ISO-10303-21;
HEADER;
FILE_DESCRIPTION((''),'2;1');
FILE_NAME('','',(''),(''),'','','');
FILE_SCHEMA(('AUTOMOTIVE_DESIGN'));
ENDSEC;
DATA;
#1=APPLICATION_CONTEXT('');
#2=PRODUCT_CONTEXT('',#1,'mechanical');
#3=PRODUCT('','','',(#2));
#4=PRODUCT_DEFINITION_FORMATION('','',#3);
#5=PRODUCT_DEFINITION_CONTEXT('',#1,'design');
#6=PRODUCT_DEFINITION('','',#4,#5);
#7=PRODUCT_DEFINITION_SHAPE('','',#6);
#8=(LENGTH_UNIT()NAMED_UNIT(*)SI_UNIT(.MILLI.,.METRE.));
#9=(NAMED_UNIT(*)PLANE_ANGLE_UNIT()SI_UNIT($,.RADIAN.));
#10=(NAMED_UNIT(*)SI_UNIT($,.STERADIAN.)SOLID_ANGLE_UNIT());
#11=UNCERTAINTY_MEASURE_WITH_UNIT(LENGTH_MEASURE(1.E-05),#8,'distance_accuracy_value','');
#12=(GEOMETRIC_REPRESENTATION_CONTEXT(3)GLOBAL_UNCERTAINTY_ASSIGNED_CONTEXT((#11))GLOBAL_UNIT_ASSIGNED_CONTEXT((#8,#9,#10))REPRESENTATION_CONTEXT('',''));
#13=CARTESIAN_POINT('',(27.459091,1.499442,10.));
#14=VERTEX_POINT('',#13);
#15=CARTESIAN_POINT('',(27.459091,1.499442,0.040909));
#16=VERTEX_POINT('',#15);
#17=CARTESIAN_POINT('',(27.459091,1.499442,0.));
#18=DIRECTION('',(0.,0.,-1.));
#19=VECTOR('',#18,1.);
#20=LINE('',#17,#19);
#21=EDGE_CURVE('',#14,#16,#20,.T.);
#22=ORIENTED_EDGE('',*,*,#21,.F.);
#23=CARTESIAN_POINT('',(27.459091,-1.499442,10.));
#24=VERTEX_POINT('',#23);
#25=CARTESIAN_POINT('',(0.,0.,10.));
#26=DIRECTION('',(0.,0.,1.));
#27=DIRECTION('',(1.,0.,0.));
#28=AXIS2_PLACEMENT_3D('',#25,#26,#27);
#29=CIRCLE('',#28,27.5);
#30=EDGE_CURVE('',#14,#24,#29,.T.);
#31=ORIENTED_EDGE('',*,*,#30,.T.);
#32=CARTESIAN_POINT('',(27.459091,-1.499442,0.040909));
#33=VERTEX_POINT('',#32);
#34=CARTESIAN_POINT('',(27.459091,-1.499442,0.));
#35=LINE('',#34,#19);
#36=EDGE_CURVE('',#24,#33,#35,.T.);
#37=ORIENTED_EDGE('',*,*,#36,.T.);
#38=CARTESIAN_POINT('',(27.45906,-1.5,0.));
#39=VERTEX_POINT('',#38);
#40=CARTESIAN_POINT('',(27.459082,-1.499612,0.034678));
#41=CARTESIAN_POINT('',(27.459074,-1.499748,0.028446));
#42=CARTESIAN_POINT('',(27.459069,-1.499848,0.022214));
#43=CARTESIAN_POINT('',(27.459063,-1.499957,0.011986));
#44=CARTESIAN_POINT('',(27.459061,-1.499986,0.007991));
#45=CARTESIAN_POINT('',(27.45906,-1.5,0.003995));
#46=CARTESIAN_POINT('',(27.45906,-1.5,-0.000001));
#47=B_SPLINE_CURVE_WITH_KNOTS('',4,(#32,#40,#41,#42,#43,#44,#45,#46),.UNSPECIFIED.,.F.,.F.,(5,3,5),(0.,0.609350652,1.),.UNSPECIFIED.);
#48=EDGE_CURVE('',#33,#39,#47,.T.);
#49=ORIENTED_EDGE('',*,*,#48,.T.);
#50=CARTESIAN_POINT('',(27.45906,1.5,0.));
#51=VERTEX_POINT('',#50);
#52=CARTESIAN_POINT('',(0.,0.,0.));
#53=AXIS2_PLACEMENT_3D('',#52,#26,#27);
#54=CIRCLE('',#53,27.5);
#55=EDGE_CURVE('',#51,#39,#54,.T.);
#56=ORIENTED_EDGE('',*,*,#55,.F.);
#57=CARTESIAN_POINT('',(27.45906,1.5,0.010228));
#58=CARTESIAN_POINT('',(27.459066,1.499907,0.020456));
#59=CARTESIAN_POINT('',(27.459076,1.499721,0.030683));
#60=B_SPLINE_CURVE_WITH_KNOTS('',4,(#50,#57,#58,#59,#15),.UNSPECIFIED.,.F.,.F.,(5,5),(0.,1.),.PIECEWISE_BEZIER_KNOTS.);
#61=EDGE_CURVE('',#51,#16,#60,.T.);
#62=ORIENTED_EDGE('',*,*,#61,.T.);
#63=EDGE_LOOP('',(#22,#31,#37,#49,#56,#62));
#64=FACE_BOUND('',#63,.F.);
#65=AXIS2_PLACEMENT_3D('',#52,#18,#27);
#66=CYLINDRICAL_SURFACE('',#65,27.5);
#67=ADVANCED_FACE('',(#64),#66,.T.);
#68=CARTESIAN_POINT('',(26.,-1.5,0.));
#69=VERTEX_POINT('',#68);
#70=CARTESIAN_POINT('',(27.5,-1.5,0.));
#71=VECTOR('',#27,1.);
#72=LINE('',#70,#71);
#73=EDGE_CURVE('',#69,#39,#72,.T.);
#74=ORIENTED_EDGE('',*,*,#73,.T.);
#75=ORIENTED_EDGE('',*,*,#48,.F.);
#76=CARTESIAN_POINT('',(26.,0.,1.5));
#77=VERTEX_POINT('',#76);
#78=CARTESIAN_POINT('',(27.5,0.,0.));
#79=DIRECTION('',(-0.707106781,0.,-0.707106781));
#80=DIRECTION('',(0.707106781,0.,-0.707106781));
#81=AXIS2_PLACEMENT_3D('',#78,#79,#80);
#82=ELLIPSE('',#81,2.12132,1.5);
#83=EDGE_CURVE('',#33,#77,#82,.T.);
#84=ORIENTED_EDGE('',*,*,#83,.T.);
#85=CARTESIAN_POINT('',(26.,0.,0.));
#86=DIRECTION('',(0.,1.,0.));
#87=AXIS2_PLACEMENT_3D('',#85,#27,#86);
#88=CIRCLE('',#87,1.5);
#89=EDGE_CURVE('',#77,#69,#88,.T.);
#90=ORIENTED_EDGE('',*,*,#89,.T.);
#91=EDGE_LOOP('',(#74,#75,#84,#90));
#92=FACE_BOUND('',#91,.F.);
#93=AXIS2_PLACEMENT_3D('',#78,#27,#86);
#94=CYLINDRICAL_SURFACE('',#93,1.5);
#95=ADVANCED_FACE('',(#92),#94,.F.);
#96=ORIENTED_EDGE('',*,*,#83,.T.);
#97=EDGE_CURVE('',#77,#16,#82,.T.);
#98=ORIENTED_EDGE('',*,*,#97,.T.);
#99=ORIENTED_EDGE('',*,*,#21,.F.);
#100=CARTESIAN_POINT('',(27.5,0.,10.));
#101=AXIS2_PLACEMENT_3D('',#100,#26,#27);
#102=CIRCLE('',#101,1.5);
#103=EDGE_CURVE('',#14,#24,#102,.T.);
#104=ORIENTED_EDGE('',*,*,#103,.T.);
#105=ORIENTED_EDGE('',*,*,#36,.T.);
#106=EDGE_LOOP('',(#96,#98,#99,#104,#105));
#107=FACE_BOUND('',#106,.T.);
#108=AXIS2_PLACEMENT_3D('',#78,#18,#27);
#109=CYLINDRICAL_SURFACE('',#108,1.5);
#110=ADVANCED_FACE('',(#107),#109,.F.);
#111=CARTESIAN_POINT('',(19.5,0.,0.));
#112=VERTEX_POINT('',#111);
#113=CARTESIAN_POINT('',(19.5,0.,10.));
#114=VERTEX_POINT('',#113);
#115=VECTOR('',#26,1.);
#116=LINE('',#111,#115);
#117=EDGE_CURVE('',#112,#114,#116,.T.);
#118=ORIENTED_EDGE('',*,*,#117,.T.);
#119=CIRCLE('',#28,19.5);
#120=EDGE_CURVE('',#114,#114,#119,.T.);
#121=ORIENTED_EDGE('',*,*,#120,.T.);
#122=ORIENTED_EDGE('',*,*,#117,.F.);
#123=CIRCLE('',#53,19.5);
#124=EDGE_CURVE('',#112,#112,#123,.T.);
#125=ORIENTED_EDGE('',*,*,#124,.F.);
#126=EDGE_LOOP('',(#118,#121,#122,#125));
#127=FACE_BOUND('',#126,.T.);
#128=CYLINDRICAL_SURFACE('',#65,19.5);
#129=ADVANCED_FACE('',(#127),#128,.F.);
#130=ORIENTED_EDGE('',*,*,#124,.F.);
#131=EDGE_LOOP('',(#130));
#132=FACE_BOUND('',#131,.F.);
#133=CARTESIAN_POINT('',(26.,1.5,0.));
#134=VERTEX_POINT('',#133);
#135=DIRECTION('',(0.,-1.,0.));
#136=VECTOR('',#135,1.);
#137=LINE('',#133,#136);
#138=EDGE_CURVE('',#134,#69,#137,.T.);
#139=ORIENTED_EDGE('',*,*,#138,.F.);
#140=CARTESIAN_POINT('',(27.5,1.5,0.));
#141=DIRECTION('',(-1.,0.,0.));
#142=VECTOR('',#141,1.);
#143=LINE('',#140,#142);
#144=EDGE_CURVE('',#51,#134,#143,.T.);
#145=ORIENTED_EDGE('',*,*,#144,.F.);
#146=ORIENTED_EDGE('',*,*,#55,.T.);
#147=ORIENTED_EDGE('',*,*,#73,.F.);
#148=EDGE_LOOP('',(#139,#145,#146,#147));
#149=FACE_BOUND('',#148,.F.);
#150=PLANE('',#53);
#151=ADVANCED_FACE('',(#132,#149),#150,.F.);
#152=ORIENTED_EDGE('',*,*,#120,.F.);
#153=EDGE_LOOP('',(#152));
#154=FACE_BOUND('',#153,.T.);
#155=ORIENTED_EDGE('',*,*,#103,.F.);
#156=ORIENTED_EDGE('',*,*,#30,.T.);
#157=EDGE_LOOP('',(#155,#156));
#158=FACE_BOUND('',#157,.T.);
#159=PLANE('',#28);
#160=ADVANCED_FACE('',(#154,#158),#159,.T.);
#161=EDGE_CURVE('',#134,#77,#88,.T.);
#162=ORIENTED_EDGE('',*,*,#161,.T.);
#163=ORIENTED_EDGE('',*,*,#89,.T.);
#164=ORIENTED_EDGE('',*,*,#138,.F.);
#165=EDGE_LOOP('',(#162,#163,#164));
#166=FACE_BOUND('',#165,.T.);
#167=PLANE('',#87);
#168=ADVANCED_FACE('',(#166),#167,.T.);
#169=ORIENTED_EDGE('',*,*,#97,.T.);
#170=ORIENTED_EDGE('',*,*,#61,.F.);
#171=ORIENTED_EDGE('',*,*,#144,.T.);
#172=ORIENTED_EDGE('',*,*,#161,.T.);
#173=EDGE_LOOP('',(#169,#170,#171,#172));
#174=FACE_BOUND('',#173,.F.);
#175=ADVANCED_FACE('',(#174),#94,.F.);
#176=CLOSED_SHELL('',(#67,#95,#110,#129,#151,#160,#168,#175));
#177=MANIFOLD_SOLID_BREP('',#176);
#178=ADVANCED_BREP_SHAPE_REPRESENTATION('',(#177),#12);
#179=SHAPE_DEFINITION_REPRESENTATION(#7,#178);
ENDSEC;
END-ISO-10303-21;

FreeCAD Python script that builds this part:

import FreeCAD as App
import Part
import Sketcher

V = App.Vector
Q = App.Units.Quantity

doc = App.newDocument("Part")
params = doc.addObject("Spreadsheet::Sheet", "Params")
for row, (alias, value) in enumerate([
    ("sketch1_diameter", "55 mm"),
    ("sketch1_diameter2", "39 mm"),
    ("pad1_length", "10 mm"),
    ("sketch2_diameter", "3 mm"),
    ("pocket1_length", "10 mm"),
    ("sketch3_diameter", "3 mm"),
    ("pocket2_length", "1.5 mm"),
], start=1):
    params.set(f"A{row}", alias)
    params.set(f"B{row}", "=" + value)
    params.setAlias(f"B{row}", alias)

body = doc.addObject("PartDesign::Body", "Body")

# Sketch on XY plane
sketch1 = body.newObject("Sketcher::SketchObject", "Sketch")
sketch1.AttachmentSupport = (doc.getObject("XY_Plane"), [""])
sketch1.MapMode = "FlatFace"
sketch1.addGeometry(Part.Circle(V(0, 0, 0), V(0, 0, 1), 28), False)
sketch1.addGeometry(Part.Circle(V(0, 0, 0), V(0, 0, 1), 20), False)
sketch1.addConstraint(Sketcher.Constraint("Coincident", 0, 3, -1, 1))
sketch1.addConstraint(Sketcher.Constraint("Coincident", 1, 3, -1, 1))
sketch1.addConstraint(Sketcher.Constraint("Diameter", 0, Q("55 mm")))
sketch1.addConstraint(Sketcher.Constraint("Diameter", 1, Q("39 mm")))
sketch1.setExpression("Constraints[2]", "Params.sketch1_diameter")
sketch1.setExpression("Constraints[3]", "Params.sketch1_diameter2")
pad1 = body.newObject("PartDesign::Pad", "Pad")
pad1.Profile = sketch1
pad1.setExpression("Length", "Params.pad1_length")

# Sketch on XY plane
sketch2 = body.newObject("Sketcher::SketchObject", "Sketch001")
sketch2.AttachmentSupport = (doc.getObject("XY_Plane"), [""])
sketch2.MapMode = "FlatFace"
sketch2.addGeometry(Part.Circle(V(27.5, 0, 0), V(0, 0, 1), 1.5), False)
sketch2.addConstraint(Sketcher.Constraint("PointOnObject", 0, 3, -1))
sketch2.addConstraint(Sketcher.Constraint("Diameter", 0, Q("3 mm")))
sketch2.addConstraint(Sketcher.Constraint("DistanceX", -1, 1, 0, 3, Q("27.5 mm")))
sketch2.setExpression("Constraints[1]", "Params.sketch2_diameter")
pocket1 = body.newObject("PartDesign::Pocket", "Pocket")
pocket1.Profile = sketch2
pocket1.setExpression("Length", "Params.pocket1_length")
pocket1.Reversed = True

# Sketch on YZ plane
sketch3 = body.newObject("Sketcher::SketchObject", "Sketch002")
sketch3.AttachmentSupport = (doc.getObject("YZ_Plane"), [""])
sketch3.MapMode = "FlatFace"
sketch3.AttachmentOffset = App.Placement(V(0, 0, 27.5), App.Rotation())
sketch3.addGeometry(Part.Circle(V(0, 0, 0), V(0, 0, 1), 1.5), False)
sketch3.addConstraint(Sketcher.Constraint("Coincident", 0, 3, -1, 1))
sketch3.addConstraint(Sketcher.Constraint("Diameter", 0, Q("3 mm")))
sketch3.setExpression("Constraints[1]", "Params.sketch3_diameter")
pocket2 = body.newObject("PartDesign::Pocket", "Pocket001")
pocket2.Profile = sketch3
pocket2.setExpression("Length", "Params.pocket2_length")

doc.recompute()
